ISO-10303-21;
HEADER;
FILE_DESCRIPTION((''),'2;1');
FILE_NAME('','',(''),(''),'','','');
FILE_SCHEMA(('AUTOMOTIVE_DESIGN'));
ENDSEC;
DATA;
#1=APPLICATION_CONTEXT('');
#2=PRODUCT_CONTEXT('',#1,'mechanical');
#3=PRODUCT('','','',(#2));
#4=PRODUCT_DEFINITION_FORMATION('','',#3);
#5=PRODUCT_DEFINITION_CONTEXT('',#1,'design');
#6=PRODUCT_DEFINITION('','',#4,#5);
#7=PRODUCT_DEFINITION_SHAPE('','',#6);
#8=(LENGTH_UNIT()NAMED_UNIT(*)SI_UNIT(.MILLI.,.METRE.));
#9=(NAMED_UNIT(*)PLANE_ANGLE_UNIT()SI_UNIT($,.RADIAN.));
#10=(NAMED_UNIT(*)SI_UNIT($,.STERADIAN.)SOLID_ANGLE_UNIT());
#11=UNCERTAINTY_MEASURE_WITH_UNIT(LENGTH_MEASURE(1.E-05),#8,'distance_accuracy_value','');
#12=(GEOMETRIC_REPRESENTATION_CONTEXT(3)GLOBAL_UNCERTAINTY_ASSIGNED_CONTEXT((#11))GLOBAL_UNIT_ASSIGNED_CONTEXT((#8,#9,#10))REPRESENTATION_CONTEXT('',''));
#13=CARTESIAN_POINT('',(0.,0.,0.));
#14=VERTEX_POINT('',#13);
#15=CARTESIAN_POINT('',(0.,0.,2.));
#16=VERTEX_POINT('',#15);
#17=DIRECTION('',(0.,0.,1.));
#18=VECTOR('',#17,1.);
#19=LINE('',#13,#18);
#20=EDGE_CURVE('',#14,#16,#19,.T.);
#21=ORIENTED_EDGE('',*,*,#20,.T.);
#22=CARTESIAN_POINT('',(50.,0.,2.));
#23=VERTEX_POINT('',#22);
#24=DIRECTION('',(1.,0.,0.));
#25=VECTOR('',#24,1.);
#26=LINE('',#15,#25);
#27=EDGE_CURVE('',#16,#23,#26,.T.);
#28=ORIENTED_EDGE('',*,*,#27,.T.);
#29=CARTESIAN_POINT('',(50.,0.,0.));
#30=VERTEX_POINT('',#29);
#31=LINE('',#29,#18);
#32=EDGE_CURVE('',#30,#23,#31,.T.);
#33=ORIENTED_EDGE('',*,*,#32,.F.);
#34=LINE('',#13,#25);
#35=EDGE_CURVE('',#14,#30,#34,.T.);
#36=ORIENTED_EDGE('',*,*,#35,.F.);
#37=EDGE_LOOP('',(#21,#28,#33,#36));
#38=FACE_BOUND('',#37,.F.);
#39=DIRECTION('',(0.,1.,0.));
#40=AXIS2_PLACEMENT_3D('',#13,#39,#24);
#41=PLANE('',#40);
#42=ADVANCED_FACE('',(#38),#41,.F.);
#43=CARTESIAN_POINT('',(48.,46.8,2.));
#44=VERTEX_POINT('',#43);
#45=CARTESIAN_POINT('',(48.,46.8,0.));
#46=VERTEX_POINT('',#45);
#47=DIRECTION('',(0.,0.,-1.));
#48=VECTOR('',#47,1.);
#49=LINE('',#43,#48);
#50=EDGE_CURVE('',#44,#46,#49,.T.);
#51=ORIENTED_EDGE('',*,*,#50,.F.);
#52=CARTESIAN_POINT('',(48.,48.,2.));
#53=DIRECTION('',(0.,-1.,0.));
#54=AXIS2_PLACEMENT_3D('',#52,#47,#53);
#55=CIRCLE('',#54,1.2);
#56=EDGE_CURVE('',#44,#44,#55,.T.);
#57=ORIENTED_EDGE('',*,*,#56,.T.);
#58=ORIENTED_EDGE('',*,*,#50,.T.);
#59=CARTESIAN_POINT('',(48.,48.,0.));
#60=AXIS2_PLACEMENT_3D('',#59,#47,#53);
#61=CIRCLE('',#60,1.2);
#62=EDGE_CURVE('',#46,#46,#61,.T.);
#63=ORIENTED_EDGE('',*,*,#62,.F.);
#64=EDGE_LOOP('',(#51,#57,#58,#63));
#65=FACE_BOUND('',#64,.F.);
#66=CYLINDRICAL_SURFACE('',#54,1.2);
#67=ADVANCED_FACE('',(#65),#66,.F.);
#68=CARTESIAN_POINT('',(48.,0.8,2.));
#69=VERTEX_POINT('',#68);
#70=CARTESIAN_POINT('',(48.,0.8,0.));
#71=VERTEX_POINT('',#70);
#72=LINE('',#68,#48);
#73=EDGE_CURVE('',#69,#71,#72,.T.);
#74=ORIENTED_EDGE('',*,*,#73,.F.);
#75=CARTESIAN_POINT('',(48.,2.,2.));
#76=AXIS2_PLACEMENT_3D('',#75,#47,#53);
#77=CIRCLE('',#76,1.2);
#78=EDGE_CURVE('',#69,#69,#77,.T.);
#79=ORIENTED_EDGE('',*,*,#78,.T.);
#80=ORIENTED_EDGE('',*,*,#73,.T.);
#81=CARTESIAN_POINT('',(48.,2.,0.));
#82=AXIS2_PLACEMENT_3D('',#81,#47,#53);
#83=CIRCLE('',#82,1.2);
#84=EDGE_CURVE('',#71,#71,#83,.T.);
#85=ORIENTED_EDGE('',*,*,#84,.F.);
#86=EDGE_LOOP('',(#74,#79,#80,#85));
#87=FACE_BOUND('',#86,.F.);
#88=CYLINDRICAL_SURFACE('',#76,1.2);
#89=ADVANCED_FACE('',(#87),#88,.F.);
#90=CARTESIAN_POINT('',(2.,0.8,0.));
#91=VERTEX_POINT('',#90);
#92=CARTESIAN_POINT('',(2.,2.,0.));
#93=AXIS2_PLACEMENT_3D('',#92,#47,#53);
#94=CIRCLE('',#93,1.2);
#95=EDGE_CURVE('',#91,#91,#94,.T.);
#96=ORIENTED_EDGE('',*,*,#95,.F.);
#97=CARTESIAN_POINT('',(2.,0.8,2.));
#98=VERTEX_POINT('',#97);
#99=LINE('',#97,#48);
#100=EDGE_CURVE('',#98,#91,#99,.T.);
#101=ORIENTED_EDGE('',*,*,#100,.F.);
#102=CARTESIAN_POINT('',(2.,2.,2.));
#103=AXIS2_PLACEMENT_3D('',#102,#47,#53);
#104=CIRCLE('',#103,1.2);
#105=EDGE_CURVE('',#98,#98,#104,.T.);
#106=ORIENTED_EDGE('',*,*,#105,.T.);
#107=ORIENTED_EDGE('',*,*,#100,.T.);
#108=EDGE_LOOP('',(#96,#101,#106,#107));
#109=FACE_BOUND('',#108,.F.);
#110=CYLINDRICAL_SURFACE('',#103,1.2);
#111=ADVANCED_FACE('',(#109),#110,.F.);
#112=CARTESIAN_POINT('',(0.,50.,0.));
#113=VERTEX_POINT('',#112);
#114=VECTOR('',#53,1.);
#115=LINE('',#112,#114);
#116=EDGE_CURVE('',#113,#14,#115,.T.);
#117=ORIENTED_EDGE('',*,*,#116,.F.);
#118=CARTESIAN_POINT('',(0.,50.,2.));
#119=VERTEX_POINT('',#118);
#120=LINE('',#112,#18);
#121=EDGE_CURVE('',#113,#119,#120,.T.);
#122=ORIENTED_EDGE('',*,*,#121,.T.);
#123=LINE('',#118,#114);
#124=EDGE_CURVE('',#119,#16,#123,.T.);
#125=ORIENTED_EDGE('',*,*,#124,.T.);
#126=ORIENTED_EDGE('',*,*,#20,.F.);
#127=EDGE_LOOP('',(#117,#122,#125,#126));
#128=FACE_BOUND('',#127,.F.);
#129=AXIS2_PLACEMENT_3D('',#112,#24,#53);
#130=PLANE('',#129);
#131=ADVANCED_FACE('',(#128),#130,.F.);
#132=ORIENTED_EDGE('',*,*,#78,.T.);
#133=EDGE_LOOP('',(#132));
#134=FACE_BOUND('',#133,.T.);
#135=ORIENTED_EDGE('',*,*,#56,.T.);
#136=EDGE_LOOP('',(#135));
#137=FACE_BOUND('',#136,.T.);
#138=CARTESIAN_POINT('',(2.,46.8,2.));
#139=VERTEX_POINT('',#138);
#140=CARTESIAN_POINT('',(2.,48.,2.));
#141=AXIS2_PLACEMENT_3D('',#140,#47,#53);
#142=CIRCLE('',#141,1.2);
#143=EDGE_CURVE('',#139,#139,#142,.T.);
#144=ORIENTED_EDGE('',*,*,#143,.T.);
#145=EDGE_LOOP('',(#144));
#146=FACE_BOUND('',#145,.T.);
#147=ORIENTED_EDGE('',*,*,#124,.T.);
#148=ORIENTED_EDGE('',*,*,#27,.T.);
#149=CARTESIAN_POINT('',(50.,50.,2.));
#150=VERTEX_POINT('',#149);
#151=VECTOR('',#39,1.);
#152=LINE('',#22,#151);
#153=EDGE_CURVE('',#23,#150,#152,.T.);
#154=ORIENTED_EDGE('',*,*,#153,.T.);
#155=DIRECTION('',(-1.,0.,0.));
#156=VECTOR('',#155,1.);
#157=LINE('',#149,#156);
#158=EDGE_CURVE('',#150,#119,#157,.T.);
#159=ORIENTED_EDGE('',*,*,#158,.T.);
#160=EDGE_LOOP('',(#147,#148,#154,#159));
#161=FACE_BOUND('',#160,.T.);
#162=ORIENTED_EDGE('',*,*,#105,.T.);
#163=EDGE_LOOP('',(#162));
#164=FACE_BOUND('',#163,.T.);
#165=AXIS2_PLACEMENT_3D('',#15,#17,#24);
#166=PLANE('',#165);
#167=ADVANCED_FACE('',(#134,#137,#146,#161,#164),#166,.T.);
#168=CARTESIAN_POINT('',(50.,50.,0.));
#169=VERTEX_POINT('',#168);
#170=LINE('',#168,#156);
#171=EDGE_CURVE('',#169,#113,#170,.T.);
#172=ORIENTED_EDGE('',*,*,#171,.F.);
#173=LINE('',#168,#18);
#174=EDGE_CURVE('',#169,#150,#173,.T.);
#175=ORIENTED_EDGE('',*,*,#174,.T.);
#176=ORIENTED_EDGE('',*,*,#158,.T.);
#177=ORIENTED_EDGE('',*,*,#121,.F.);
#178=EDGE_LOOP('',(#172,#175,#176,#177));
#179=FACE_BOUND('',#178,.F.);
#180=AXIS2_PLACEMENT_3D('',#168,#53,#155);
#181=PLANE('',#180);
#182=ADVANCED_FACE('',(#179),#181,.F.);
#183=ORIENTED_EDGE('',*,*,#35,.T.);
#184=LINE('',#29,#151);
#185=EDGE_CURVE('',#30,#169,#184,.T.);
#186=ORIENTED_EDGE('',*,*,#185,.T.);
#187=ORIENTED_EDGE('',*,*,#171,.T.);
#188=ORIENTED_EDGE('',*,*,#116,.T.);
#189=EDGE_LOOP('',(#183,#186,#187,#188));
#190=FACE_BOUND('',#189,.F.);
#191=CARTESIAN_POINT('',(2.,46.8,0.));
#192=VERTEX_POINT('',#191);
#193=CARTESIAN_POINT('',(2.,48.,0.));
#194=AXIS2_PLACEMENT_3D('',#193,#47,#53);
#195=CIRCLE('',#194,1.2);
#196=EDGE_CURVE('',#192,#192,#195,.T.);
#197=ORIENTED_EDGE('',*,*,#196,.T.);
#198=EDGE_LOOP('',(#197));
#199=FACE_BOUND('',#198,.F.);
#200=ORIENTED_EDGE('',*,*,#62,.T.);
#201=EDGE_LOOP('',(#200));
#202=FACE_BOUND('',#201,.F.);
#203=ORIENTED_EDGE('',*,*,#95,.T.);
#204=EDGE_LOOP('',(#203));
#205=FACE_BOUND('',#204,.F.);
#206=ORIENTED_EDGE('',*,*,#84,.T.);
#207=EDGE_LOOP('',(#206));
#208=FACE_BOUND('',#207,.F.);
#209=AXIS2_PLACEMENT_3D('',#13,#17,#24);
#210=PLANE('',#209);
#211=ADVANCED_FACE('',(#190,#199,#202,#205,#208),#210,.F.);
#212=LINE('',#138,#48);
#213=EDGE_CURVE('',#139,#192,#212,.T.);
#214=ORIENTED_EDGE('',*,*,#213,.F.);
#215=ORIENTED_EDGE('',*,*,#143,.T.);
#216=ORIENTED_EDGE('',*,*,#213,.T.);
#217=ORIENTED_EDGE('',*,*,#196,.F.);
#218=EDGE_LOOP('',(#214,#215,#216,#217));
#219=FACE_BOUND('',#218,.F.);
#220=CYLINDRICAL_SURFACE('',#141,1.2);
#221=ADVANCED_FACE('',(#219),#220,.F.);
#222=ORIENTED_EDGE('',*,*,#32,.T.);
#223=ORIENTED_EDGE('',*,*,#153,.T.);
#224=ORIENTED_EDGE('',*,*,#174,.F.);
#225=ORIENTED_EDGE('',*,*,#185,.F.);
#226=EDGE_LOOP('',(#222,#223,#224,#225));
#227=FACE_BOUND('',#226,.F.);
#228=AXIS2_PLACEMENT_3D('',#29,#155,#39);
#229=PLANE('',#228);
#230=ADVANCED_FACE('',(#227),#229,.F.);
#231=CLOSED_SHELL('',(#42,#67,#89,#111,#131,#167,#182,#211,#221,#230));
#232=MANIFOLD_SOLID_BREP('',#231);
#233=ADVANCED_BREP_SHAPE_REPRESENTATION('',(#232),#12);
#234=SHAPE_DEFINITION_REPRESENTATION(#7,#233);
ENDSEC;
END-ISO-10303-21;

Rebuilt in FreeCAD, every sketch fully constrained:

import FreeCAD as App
import Part
import Sketcher
from FreeCAD import Vector
Q = App.Units.Quantity


def add_polygon(sketch, points):
    """Adds a closed chain of lines whose ends are joined by coincident constraints."""
    first, n = sketch.GeometryCount, len(points)
    for a, b in zip(points, points[1:] + points[:1]):
        sketch.addGeometry(Part.LineSegment(App.Vector(*a, 0), App.Vector(*b, 0)), False)
    for i in range(n):
        sketch.addConstraint(Sketcher.Constraint("Coincident", first + i, 2, first + (i + 1) % n, 1))

doc = App.newDocument("Part")
body = doc.addObject("PartDesign::Body", "Body")

# Sketch on XY plane
sketch1 = body.newObject("Sketcher::SketchObject", "Sketch")
sketch1.AttachmentSupport = (doc.getObject("XY_Plane"), [""])
sketch1.MapMode = "FlatFace"
add_polygon(sketch1, [(0, 50), (0, 0), (50, 0), (50, 50)])  # lines 0-3
sketch1.addConstraint([
    Sketcher.Constraint("Vertical", 0),
    Sketcher.Constraint("Horizontal", 1),
    Sketcher.Constraint("Vertical", 2),
    Sketcher.Constraint("Horizontal", 3),
    Sketcher.Constraint("Coincident", 0, 2, -1, 1),
    Sketcher.Constraint("Equal", 3, 0),
    Sketcher.Constraint("DistanceX", 1, 1, 1, 2, Q("50 mm")),
])
pad1 = body.newObject("PartDesign::Pad", "Pad")
pad1.Profile = sketch1
pad1.Length = 2

# Sketch on XY plane
sketch2 = body.newObject("Sketcher::SketchObject", "Sketch001")
sketch2.AttachmentSupport = (doc.getObject("XY_Plane"), [""])
sketch2.MapMode = "FlatFace"
sketch2.AttachmentOffset = App.Placement(Vector(0, 0, 2), App.Rotation())
sketch2.addGeometry([
    Part.Circle(Vector(2, 48, 0), Vector(0, 0, 1), 1.2),
    Part.Circle(Vector(48, 48, 0), Vector(0, 0, 1), 1.2),
    Part.Circle(Vector(48, 2, 0), Vector(0, 0, 1), 1.2),
    Part.Circle(Vector(2, 2, 0), Vector(0, 0, 1), 1.2),
], False)
sketch2.addConstraint([
    Sketcher.Constraint("Equal", 0, 1),
    Sketcher.Constraint("Equal", 1, 2),
    Sketcher.Constraint("Equal", 2, 3),
    Sketcher.Constraint("Horizontal", 0, 3, 1, 3),
    Sketcher.Constraint("Horizontal", 2, 3, 3, 3),
    Sketcher.Constraint("Vertical", 1, 3, 2, 3),
    Sketcher.Constraint("Vertical", 0, 3, 3, 3),
    Sketcher.Constraint("Diameter", 0, Q("2.4 mm")),
    Sketcher.Constraint("DistanceX", -1, 1, 0, 3, Q("2 mm")),
    Sketcher.Constraint("DistanceY", -1, 1, 0, 3, Q("48 mm")),
    Sketcher.Constraint("DistanceX", -1, 1, 1, 3, Q("48 mm")),
    Sketcher.Constraint("DistanceY", -1, 1, 2, 3, Q("2 mm")),
])
doc.recompute()
hole = body.newObject("PartDesign::Hole", "Hole")
hole.Profile = sketch2
hole.ThreadType = "None"
hole.Diameter = 2.4
hole.DepthType = "ThroughAll"

doc.recompute()
